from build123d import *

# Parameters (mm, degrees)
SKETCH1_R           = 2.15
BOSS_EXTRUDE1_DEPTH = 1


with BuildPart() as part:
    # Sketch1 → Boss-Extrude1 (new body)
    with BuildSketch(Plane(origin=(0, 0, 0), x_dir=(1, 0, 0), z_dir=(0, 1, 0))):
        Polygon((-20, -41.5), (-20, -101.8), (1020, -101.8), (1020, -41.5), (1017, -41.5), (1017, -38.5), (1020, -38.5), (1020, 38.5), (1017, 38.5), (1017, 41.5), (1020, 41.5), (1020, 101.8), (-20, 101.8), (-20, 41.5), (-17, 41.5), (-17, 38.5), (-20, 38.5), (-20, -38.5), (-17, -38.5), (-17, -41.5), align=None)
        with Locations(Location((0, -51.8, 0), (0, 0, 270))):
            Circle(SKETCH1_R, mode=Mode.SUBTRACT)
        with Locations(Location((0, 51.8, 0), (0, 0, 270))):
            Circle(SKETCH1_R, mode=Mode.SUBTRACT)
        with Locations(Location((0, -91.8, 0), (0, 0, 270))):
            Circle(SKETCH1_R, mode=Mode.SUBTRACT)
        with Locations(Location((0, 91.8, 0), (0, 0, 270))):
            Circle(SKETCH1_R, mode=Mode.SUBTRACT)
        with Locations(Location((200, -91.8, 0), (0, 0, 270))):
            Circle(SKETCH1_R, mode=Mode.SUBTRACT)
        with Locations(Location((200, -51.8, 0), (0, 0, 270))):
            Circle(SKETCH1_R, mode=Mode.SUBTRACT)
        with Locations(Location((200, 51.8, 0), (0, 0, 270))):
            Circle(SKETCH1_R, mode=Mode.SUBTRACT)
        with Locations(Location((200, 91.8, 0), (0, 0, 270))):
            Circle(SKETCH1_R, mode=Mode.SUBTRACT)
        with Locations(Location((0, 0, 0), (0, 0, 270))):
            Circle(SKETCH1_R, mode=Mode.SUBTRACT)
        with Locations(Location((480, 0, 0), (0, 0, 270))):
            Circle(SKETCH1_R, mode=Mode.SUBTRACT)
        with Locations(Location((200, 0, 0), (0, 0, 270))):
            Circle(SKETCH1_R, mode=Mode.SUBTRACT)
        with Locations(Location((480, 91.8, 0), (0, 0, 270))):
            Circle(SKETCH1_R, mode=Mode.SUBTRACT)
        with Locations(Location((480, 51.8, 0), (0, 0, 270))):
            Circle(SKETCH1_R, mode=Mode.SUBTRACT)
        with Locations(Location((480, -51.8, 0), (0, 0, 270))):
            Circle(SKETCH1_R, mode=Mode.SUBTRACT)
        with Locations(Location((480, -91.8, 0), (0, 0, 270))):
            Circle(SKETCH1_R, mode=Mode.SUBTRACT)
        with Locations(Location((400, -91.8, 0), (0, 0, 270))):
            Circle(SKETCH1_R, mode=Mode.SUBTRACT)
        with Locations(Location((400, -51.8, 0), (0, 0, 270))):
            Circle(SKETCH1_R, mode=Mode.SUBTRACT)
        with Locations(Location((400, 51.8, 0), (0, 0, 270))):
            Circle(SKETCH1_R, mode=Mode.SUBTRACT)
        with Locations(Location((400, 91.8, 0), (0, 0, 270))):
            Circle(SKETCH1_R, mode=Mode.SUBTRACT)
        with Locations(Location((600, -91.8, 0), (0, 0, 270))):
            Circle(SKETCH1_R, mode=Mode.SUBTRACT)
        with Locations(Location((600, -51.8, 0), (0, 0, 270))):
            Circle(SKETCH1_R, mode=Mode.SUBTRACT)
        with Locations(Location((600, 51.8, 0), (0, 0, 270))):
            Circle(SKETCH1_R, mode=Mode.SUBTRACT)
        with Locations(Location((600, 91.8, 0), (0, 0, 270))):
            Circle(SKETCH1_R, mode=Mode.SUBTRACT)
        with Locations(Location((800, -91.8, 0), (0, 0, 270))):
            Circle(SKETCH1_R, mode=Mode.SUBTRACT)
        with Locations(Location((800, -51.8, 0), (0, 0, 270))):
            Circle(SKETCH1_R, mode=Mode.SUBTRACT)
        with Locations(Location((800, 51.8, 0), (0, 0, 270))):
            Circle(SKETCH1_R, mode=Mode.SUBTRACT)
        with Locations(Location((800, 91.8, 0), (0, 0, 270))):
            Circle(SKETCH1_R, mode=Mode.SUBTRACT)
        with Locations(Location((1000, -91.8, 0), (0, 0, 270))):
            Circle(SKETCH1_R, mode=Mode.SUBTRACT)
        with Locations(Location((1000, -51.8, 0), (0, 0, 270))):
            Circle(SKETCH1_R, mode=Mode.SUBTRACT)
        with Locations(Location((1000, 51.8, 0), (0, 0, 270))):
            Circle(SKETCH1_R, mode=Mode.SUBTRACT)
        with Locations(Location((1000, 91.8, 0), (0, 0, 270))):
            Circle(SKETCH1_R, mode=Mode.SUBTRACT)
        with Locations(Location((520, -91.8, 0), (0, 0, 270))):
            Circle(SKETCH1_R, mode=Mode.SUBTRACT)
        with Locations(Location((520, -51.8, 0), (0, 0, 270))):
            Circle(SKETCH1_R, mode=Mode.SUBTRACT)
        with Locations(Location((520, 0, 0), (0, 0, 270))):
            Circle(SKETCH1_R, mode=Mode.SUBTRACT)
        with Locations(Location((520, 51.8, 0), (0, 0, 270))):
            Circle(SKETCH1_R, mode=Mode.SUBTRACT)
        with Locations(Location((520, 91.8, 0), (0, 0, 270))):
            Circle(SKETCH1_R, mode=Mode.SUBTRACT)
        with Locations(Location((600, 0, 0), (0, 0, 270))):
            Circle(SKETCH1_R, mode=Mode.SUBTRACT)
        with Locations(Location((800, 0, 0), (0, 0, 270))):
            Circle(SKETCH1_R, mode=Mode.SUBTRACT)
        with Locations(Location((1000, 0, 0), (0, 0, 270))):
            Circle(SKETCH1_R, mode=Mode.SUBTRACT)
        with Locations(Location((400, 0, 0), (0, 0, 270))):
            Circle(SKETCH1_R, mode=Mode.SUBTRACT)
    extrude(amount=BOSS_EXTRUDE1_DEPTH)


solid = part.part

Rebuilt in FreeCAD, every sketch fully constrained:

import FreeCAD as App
import Part
import Sketcher

V = App.Vector
Q = App.Units.Quantity


def add_polygon(sketch, points):
    """Adds a closed chain of lines whose ends are joined by coincident constraints."""
    first, n = sketch.GeometryCount, len(points)
    for a, b in zip(points, points[1:] + points[:1]):
        sketch.addGeometry(Part.LineSegment(App.Vector(*a, 0), App.Vector(*b, 0)), False)
    for i in range(n):
        sketch.addConstraint(Sketcher.Constraint("Coincident", first + i, 2, first + (i + 1) % n, 1))

doc = App.newDocument("Part")
body = doc.addObject("PartDesign::Body", "Body")

# Sketch on XZ plane
sketch1 = doc.addObject("Sketcher::SketchObject", "Sketch")
body.addObject(sketch1)
sketch1.AttachmentSupport = (doc.XZ_Plane, [""])
sketch1.MapMode = "FlatFace"
add_polygon(sketch1, [(-20, 41.5), (-20, 101.8), (1020, 101.8), (1020, 41.5), (1017, 41.5), (1017, 38.5), (1020, 38.5), (1020, -38.5), (1017, -38.5), (1017, -41.5), (1020, -41.5), (1020, -101.8), (-20, -101.8), (-20, -41.5), (-17, -41.5), (-17, -38.5), (-20, -38.5), (-20, 38.5), (-17, 38.5), (-17, 41.5)])  # lines 0-19
sketch1.addGeometry(Part.Circle(V(0, 91.8, 0), V(0, 0, 1), 2.1), False)  # 20
sketch1.addGeometry(Part.Circle(V(200, 91.8, 0), V(0, 0, 1), 2.1), False)  # 21
sketch1.addGeometry(Part.Circle(V(0, 51.8, 0), V(0, 0, 1), 2.1), False)  # 22
sketch1.addGeometry(Part.Circle(V(200, 51.8, 0), V(0, 0, 1), 2.1), False)  # 23
sketch1.addGeometry(Part.Circle(V(400, 91.8, 0), V(0, 0, 1), 2.1), False)  # 24
sketch1.addGeometry(Part.Circle(V(480, 91.8, 0), V(0, 0, 1), 2.1), False)  # 25
sketch1.addGeometry(Part.Circle(V(400, 51.8, 0), V(0, 0, 1), 2.1), False)  # 26
sketch1.addGeometry(Part.Circle(V(480, 51.8, 0), V(0, 0, 1), 2.1), False)  # 27
sketch1.addGeometry(Part.Circle(V(520, 91.8, 0), V(0, 0, 1), 2.1), False)  # 28
sketch1.addGeometry(Part.Circle(V(600, 91.8, 0), V(0, 0, 1), 2.1), False)  # 29
sketch1.addGeometry(Part.Circle(V(520, 51.8, 0), V(0, 0, 1), 2.1), False)  # 30
sketch1.addGeometry(Part.Circle(V(600, 51.8, 0), V(0, 0, 1), 2.1), False)  # 31
sketch1.addGeometry(Part.Circle(V(800, 91.8, 0), V(0, 0, 1), 2.1), False)  # 32
sketch1.addGeometry(Part.Circle(V(1000, 91.8, 0), V(0, 0, 1), 2.1), False)  # 33
sketch1.addGeometry(Part.Circle(V(800, 51.8, 0), V(0, 0, 1), 2.1), False)  # 34
sketch1.addGeometry(Part.Circle(V(1000, 51.8, 0), V(0, 0, 1), 2.1), False)  # 35
sketch1.addGeometry(Part.Circle(V(0, 0, 0), V(0, 0, 1), 2.1), False)  # 36
sketch1.addGeometry(Part.Circle(V(200, 0, 0), V(0, 0, 1), 2.1), False)  # 37
sketch1.addGeometry(Part.Circle(V(400, 0, 0), V(0, 0, 1), 2.1), False)  # 38
sketch1.addGeometry(Part.Circle(V(480, 0, 0), V(0, 0, 1), 2.1), False)  # 39
sketch1.addGeometry(Part.Circle(V(0, -51.8, 0), V(0, 0, 1), 2.1), False)  # 40
sketch1.addGeometry(Part.Circle(V(200, -51.8, 0), V(0, 0, 1), 2.1), False)  # 41
sketch1.addGeometry(Part.Circle(V(0, -91.8, 0), V(0, 0, 1), 2.1), False)  # 42
sketch1.addGeometry(Part.Circle(V(200, -91.8, 0), V(0, 0, 1), 2.1), False)  # 43
sketch1.addGeometry(Part.Circle(V(400, -51.8, 0), V(0, 0, 1), 2.1), False)  # 44
sketch1.addGeometry(Part.Circle(V(480, -51.8, 0), V(0, 0, 1), 2.1), False)  # 45
sketch1.addGeometry(Part.Circle(V(400, -91.8, 0), V(0, 0, 1), 2.1), False)  # 46
sketch1.addGeometry(Part.Circle(V(480, -91.8, 0), V(0, 0, 1), 2.1), False)  # 47
sketch1.addGeometry(Part.Circle(V(520, 0, 0), V(0, 0, 1), 2.1), False)  # 48
sketch1.addGeometry(Part.Circle(V(600, 0, 0), V(0, 0, 1), 2.1), False)  # 49
sketch1.addGeometry(Part.Circle(V(800, 0, 0), V(0, 0, 1), 2.1), False)  # 50
sketch1.addGeometry(Part.Circle(V(1000, 0, 0), V(0, 0, 1), 2.1), False)  # 51
sketch1.addGeometry(Part.Circle(V(520, -51.8, 0), V(0, 0, 1), 2.1), False)  # 52
sketch1.addGeometry(Part.Circle(V(600, -51.8, 0), V(0, 0, 1), 2.1), False)  # 53
sketch1.addGeometry(Part.Circle(V(520, -91.8, 0), V(0, 0, 1), 2.1), False)  # 54
sketch1.addGeometry(Part.Circle(V(600, -91.8, 0), V(0, 0, 1), 2.1), False)  # 55
sketch1.addGeometry(Part.Circle(V(800, -51.8, 0), V(0, 0, 1), 2.1), False)  # 56
sketch1.addGeometry(Part.Circle(V(1000, -51.8, 0), V(0, 0, 1), 2.1), False)  # 57
sketch1.addGeometry(Part.Circle(V(800, -91.8, 0), V(0, 0, 1), 2.1), False)  # 58
sketch1.addGeometry(Part.Circle(V(1000, -91.8, 0), V(0, 0, 1), 2.1), False)  # 59
sketch1.addConstraint([
    Sketcher.Constraint("Vertical", 0),
    Sketcher.Constraint("Horizontal", 1),
    Sketcher.Constraint("Vertical", 2),
    Sketcher.Constraint("Horizontal", 3),
    Sketcher.Constraint("Vertical", 4),
    Sketcher.Constraint("Horizontal", 5),
    Sketcher.Constraint("Vertical", 6),
    Sketcher.Constraint("Horizontal", 7),
    Sketcher.Constraint("Vertical", 8),
    Sketcher.Constraint("Horizontal", 9),
    Sketcher.Constraint("Vertical", 10),
    Sketcher.Constraint("Horizontal", 11),
    Sketcher.Constraint("Vertical", 12),
    Sketcher.Constraint("Horizontal", 13),
    Sketcher.Constraint("Vertical", 14),
    Sketcher.Constraint("Horizontal", 15),
    Sketcher.Constraint("Vertical", 16),
    Sketcher.Constraint("Horizontal", 17),
    Sketcher.Constraint("Vertical", 18),
    Sketcher.Constraint("Horizontal", 19),
    Sketcher.Constraint("Coincident", 36, 3, -1, 1),
    Sketcher.Constraint("Equal", 20, 21),
    Sketcher.Constraint("Equal", 21, 22),
    Sketcher.Constraint("Equal", 22, 23),
    Sketcher.Constraint("Equal", 23, 24),
    Sketcher.Constraint("Equal", 24, 25),
    Sketcher.Constraint("Equal", 25, 26),
    Sketcher.Constraint("Equal", 26, 27),
    Sketcher.Constraint("Equal", 27, 28),
    Sketcher.Constraint("Equal", 28, 29),
    Sketcher.Constraint("Equal", 29, 30),
    Sketcher.Constraint("Equal", 30, 31),
    Sketcher.Constraint("Equal", 31, 32),
    Sketcher.Constraint("Equal", 32, 33),
    Sketcher.Constraint("Equal", 33, 34),
    Sketcher.Constraint("Equal", 34, 35),
    Sketcher.Constraint("Equal", 35, 36),
    Sketcher.Constraint("Equal", 36, 37),
    Sketcher.Constraint("Equal", 37, 38),
    Sketcher.Constraint("Equal", 38, 39),
    Sketcher.Constraint("Equal", 39, 40),
    Sketcher.Constraint("Equal", 40, 41),
    Sketcher.Constraint("Equal", 41, 42),
    Sketcher.Constraint("Equal", 42, 43),
    Sketcher.Constraint("Equal", 43, 44),
    Sketcher.Constraint("Equal", 44, 45),
    Sketcher.Constraint("Equal", 45, 46),
    Sketcher.Constraint("Equal", 46, 47),
    Sketcher.Constraint("Equal", 47, 48),
    Sketcher.Constraint("Equal", 48, 49),
    Sketcher.Constraint("Equal", 49, 50),
    Sketcher.Constraint("Equal", 50, 51),
    Sketcher.Constraint("Equal", 51, 52),
    Sketcher.Constraint("Equal", 52, 53),
    Sketcher.Constraint("Equal", 53, 54),
    Sketcher.Constraint("Equal", 54, 55),
    Sketcher.Constraint("Equal", 55, 56),
    Sketcher.Constraint("Equal", 56, 57),
    Sketcher.Constraint("Equal", 57, 58),
    Sketcher.Constraint("Equal", 58, 59),
    Sketcher.Constraint("Symmetric", 22, 3, 40, 3, -1, 1),
    Sketcher.Constraint("Symmetric", 20, 3, 42, 3, -1, 1),
    Sketcher.Constraint("Symmetric", 23, 3, 41, 3, -1),
    Sketcher.Constraint("Symmetric", 21, 3, 43, 3, -1),
    Sketcher.Constraint("Symmetric", 26, 3, 44, 3, -1),
    Sketcher.Constraint("Symmetric", 27, 3, 45, 3, -1),
    Sketcher.Constraint("Symmetric", 24, 3, 46, 3, -1),
    Sketcher.Constraint("Symmetric", 25, 3, 47, 3, -1),
    Sketcher.Constraint("Symmetric", 30, 3, 52, 3, -1),
    Sketcher.Constraint("Symmetric", 31, 3, 53, 3, -1),
    Sketcher.Constraint("Symmetric", 28, 3, 54, 3, -1),
    Sketcher.Constraint("Symmetric", 29, 3, 55, 3, -1),
    Sketcher.Constraint("Symmetric", 34, 3, 56, 3, -1),
    Sketcher.Constraint("Symmetric", 35, 3, 57, 3, -1),
    Sketcher.Constraint("Symmetric", 32, 3, 58, 3, -1),
    Sketcher.Constraint("Symmetric", 33, 3, 59, 3, -1),
    Sketcher.Constraint("Symmetric", 4, 2, 7, 2, -1),
    Sketcher.Constraint("Symmetric", 2, 2, 9, 2, -1),
    Sketcher.Constraint("Symmetric", 0, 2, 11, 2, -1),
    Sketcher.Constraint("Symmetric", 14, 2, 17, 2, -1),
    Sketcher.Constraint("PointOnObject", 20, 3, -2),
    Sketcher.Constraint("PointOnObject", 22, 3, -2),
    Sketcher.Constraint("PointOnObject", 37, 3, -1),
    Sketcher.Constraint("PointOnObject", 38, 3, -1),
    Sketcher.Constraint("PointOnObject", 39, 3, -1),
    Sketcher.Constraint("PointOnObject", 48, 3, -1),
    Sketcher.Constraint("PointOnObject", 49, 3, -1),
    Sketcher.Constraint("PointOnObject", 50, 3, -1),
    Sketcher.Constraint("PointOnObject", 51, 3, -1),
    Sketcher.Constraint("Horizontal", 20, 3, 21, 3),
    Sketcher.Constraint("Horizontal", 22, 3, 23, 3),
    Sketcher.Constraint("Horizontal", 21, 3, 24, 3),
    Sketcher.Constraint("Horizontal", 24, 3, 25, 3),
    Sketcher.Constraint("Horizontal", 23, 3, 26, 3),
    Sketcher.Constraint("Horizontal", 26, 3, 27, 3),
    Sketcher.Constraint("Horizontal", 25, 3, 28, 3),
    Sketcher.Constraint("Horizontal", 28, 3, 29, 3),
    Sketcher.Constraint("Horizontal", 27, 3, 30, 3),
    Sketcher.Constraint("Horizontal", 30, 3, 31, 3),
    Sketcher.Constraint("Horizontal", 29, 3, 32, 3),
    Sketcher.Constraint("Horizontal", 32, 3, 33, 3),
    Sketcher.Constraint("Horizontal", 31, 3, 34, 3),
    Sketcher.Constraint("Horizontal", 34, 3, 35, 3),
    Sketcher.Constraint("Horizontal", 9, 2, 12, 2),
    Sketcher.Constraint("Horizontal", 7, 2, 14, 2),
    Sketcher.Constraint("Horizontal", 3, 2, 18, 2),
    Sketcher.Constraint("Vertical", 21, 3, 23, 3),
    Sketcher.Constraint("Vertical", 24, 3, 26, 3),
    Sketcher.Constraint("Vertical", 25, 3, 27, 3),
    Sketcher.Constraint("Vertical", 28, 3, 30, 3),
    Sketcher.Constraint("Vertical", 29, 3, 31, 3),
    Sketcher.Constraint("Vertical", 32, 3, 34, 3),
    Sketcher.Constraint("Vertical", 33, 3, 35, 3),
    Sketcher.Constraint("Vertical", 23, 3, 37, 3),
    Sketcher.Constraint("Vertical", 26, 3, 38, 3),
    Sketcher.Constraint("Vertical", 27, 3, 39, 3),
    Sketcher.Constraint("Vertical", 30, 3, 48, 3),
    Sketcher.Constraint("Vertical", 31, 3, 49, 3),
    Sketcher.Constraint("Vertical", 34, 3, 50, 3),
    Sketcher.Constraint("Vertical", 35, 3, 51, 3),
    Sketcher.Constraint("Vertical", 2, 2, 5, 2),
    Sketcher.Constraint("Vertical", 12, 2, 15, 2),
    Sketcher.Constraint("Equal", 9, 13),
    Sketcher.Constraint("Equal", 19, 4),
    Sketcher.Constraint("Diameter", 20, Q("4.3 mm")),
    Sketcher.Constraint("DistanceX", 1, 1, 1, 2, Q("1040 mm")),
    Sketcher.Constraint("DistanceX", 3, 2, 3, 1, Q("3 mm")),
    Sketcher.Constraint("DistanceY", 6, 2, 6, 1, Q("77 mm")),
    Sketcher.Constraint("DistanceY", 0, 1, 0, 2, Q("60.3 mm")),
    Sketcher.Constraint("DistanceX", -1, 1, 21, 3, Q("200 mm")),
    Sketcher.Constraint("DistanceX", -1, 1, 24, 3, Q("400 mm")),
    Sketcher.Constraint("DistanceX", -1, 1, 25, 3, Q("480 mm")),
    Sketcher.Constraint("DistanceX", -1, 1, 28, 3, Q("520 mm")),
    Sketcher.Constraint("DistanceX", -1, 1, 29, 3, Q("600 mm")),
    Sketcher.Constraint("DistanceX", -1, 1, 32, 3, Q("800 mm")),
    Sketcher.Constraint("DistanceX", -1, 1, 33, 3, Q("1000 mm")),
    Sketcher.Constraint("DistanceX", 0, 2, -1, 1, Q("20 mm")),
    Sketcher.Constraint("DistanceY", 22, 3, 20, 3, Q("40 mm")),
    Sketcher.Constraint("DistanceY", 20, 3, 0, 2, Q("10 mm")),
])
pad1 = doc.addObject("PartDesign::Pad", "Pad")
body.addObject(pad1)
pad1.Profile = sketch1
pad1.Length = 1
pad1.Reversed = True

doc.recompute()
